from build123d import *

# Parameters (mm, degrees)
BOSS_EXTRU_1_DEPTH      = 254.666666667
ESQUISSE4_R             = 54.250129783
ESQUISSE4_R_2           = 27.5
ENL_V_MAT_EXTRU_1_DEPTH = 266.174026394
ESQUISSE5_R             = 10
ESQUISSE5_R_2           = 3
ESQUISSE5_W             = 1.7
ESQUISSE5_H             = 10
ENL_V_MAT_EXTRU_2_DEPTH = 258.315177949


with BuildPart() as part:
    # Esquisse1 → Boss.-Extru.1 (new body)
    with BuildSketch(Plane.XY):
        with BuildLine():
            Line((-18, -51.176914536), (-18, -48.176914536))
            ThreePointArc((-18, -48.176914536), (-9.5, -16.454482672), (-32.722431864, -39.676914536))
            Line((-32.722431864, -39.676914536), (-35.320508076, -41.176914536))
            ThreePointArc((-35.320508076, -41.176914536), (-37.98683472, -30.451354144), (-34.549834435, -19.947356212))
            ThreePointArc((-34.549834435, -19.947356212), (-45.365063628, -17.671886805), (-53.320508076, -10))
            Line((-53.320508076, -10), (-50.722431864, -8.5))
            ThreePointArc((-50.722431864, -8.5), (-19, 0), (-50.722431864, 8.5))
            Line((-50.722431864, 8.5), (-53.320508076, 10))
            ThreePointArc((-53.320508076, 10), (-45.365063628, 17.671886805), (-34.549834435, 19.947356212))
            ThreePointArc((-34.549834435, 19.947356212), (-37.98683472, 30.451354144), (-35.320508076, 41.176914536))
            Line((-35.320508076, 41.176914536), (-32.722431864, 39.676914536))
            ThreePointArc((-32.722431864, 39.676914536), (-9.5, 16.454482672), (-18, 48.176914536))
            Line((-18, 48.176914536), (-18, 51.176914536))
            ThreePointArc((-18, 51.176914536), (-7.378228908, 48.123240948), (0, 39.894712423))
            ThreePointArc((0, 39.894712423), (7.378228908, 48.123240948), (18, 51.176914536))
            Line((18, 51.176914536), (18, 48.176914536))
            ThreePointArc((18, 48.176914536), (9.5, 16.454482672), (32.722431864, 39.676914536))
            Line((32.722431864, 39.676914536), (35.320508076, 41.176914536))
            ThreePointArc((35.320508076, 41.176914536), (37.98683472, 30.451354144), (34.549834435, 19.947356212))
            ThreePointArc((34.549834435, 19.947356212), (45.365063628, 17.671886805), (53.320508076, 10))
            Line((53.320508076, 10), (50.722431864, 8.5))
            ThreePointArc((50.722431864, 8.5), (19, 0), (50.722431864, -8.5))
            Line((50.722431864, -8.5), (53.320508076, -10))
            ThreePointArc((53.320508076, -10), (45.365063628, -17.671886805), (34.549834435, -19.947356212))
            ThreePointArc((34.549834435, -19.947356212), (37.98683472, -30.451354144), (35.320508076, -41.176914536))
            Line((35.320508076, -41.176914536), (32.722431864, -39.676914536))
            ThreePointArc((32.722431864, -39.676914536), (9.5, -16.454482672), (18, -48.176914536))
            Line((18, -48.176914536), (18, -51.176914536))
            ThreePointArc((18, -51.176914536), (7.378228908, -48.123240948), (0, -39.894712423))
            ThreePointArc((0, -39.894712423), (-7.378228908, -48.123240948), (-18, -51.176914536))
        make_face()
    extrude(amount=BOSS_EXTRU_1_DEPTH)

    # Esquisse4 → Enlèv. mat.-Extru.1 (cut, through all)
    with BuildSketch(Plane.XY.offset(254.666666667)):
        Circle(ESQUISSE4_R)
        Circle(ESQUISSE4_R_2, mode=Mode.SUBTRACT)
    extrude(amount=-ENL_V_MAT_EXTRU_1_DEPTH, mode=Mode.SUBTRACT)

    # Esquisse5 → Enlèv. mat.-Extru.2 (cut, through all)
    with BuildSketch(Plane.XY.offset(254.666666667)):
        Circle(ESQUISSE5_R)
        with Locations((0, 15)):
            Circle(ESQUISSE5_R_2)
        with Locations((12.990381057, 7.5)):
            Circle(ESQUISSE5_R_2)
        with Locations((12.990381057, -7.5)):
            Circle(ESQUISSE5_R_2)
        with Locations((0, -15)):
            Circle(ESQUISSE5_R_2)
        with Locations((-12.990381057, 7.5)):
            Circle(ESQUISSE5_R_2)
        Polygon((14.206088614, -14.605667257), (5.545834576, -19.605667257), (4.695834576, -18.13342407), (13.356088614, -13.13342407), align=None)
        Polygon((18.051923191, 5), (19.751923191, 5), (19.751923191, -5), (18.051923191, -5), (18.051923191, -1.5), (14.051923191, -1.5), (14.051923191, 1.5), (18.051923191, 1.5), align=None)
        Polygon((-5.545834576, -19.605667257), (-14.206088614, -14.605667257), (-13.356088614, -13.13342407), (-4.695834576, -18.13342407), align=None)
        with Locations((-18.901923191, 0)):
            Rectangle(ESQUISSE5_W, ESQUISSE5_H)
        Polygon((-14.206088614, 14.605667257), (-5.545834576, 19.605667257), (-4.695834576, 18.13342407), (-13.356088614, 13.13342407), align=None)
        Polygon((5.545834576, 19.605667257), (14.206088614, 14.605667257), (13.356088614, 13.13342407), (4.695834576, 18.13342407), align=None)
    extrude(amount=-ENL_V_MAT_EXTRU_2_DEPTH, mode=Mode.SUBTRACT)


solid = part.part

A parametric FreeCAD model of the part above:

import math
import FreeCAD as App
import Part
import Sketcher
from FreeCAD import Vector
Q = App.Units.Quantity

doc = App.newDocument("Part")
params = doc.addObject("Spreadsheet::Sheet", "Params")
for row, (alias, value) in enumerate([
    ("sketch1_radius", "20 mm"),
    ("sketch1_radius2", "17 mm"),
    ("pad1_length", "254.666667 mm"),
    ("sketch2_diameter", "55 mm"),
    ("sketch3_diameter", "20 mm"),
    ("sketch3_diameter2", "6 mm"),
    ("sketch3_width", "4 mm"),
    ("sketch3_height", "3 mm"),
    ("sketch3_height2", "10 mm"),
], start=1):
    params.set(f"A{row}", alias)
    params.set(f"B{row}", "=" + value)
    params.setAlias(f"B{row}", alias)

body = doc.addObject("PartDesign::Body", "Body")

# Sketch on XY plane
sketch1 = body.newObject("Sketcher::SketchObject", "Sketch")
sketch1.AttachmentSupport = (doc.getObject("XY_Plane"), [""])
sketch1.MapMode = "FlatFace"
sketch1.addGeometry([
    Part.LineSegment(Vector(-18, -48.2, 0), Vector(-18, -51.2, 0)),  # 0
    Part.ArcOfCircle(Part.Circle(Vector(-18, -31.2, 0), Vector(0, 0, 1), 20), math.radians(-90), math.radians(-26)),  # 1
    Part.ArcOfCircle(Part.Circle(Vector(18, -31.2, 0), Vector(0, 0, 1), 20), math.radians(-154), math.radians(-90)),  # 2
    Part.LineSegment(Vector(18, -51.2, 0), Vector(18, -48.2, 0)),  # 3
    Part.ArcOfCircle(Part.Circle(Vector(18, -31.2, 0), Vector(0, 0, 1), 17), math.radians(-30), math.radians(270)),  # 4
    Part.LineSegment(Vector(32.7, -39.7, 0), Vector(35.3, -41.2, 0)),  # 5
    Part.ArcOfCircle(Part.Circle(Vector(18, -31.2, 0), Vector(0, 0, 1), 20), math.radians(-30), math.radians(34)),  # 6
    Part.ArcOfCircle(Part.Circle(Vector(36, 0, 0), Vector(0, 0, 1), 20), math.radians(-94), math.radians(-30)),  # 7
    Part.LineSegment(Vector(53.3, -10, 0), Vector(50.7, -8.5, 0)),  # 8
    Part.ArcOfCircle(Part.Circle(Vector(36, 0, 0), Vector(0, 0, 1), 17), math.radians(30), math.radians(330)),  # 9
    Part.LineSegment(Vector(50.7, 8.5, 0), Vector(53.3, 10, 0)),  # 10
    Part.ArcOfCircle(Part.Circle(Vector(36, 0, 0), Vector(0, 0, 1), 20), math.radians(30), math.radians(94)),  # 11
    Part.ArcOfCircle(Part.Circle(Vector(18, 31.2, 0), Vector(0, 0, 1), 20), math.radians(-34), math.radians(30)),  # 12
    Part.LineSegment(Vector(35.3, 41.2, 0), Vector(32.7, 39.7, 0)),  # 13
    Part.ArcOfCircle(Part.Circle(Vector(18, 31.2, 0), Vector(0, 0, 1), 17), math.radians(90), math.radians(390)),  # 14
    Part.LineSegment(Vector(18, 48.2, 0), Vector(18, 51.2, 0)),  # 15
    Part.ArcOfCircle(Part.Circle(Vector(18, 31.2, 0), Vector(0, 0, 1), 20), math.radians(90), math.radians(154)),  # 16
    Part.ArcOfCircle(Part.Circle(Vector(-18, 31.2, 0), Vector(0, 0, 1), 20), math.radians(26), math.radians(90)),  # 17
    Part.LineSegment(Vector(-18, 51.2, 0), Vector(-18, 48.2, 0)),  # 18
    Part.ArcOfCircle(Part.Circle(Vector(-18, 31.2, 0), Vector(0, 0, 1), 17), math.radians(150), math.radians(450)),  # 19
    Part.LineSegment(Vector(-32.7, 39.7, 0), Vector(-35.3, 41.2, 0)),  # 20
    Part.ArcOfCircle(Part.Circle(Vector(-18, 31.2, 0), Vector(0, 0, 1), 20), math.radians(150), math.radians(214)),  # 21
    Part.ArcOfCircle(Part.Circle(Vector(-36, 0, 0), Vector(0, 0, 1), 20), math.radians(86), math.radians(150)),  # 22
    Part.LineSegment(Vector(-53.3, 10, 0), Vector(-50.7, 8.5, 0)),  # 23
    Part.ArcOfCircle(Part.Circle(Vector(-36, 0, 0), Vector(0, 0, 1), 17), math.radians(-150), math.radians(150)),  # 24
    Part.LineSegment(Vector(-50.7, -8.5, 0), Vector(-53.3, -10, 0)),  # 25
    Part.ArcOfCircle(Part.Circle(Vector(-36, 0, 0), Vector(0, 0, 1), 20), math.radians(-150), math.radians(-86)),  # 26
    Part.ArcOfCircle(Part.Circle(Vector(-18, -31.2, 0), Vector(0, 0, 1), 20), math.radians(146), math.radians(210)),  # 27
    Part.LineSegment(Vector(-35.3, -41.2, 0), Vector(-32.7, -39.7, 0)),  # 28
    Part.ArcOfCircle(Part.Circle(Vector(-18, -31.2, 0), Vector(0, 0, 1), 17), math.radians(-90), math.radians(210)),  # 29
], False)
sketch1.addConstraint([
    Sketcher.Constraint("Coincident", 0, 2, 1, 1),
    Sketcher.Constraint("Coincident", 1, 2, 2, 1),
    Sketcher.Constraint("Coincident", 2, 2, 3, 1),
    Sketcher.Constraint("Coincident", 3, 2, 4, 2),
    Sketcher.Constraint("Coincident", 4, 1, 5, 1),
    Sketcher.Constraint("Coincident", 5, 2, 6, 1),
    Sketcher.Constraint("Coincident", 6, 2, 7, 1),
    Sketcher.Constraint("Coincident", 7, 2, 8, 1),
    Sketcher.Constraint("Coincident", 8, 2, 9, 2),
    Sketcher.Constraint("Coincident", 9, 1, 10, 1),
    Sketcher.Constraint("Coincident", 10, 2, 11, 1),
    Sketcher.Constraint("Coincident", 11, 2, 12, 1),
    Sketcher.Constraint("Coincident", 12, 2, 13, 1),
    Sketcher.Constraint("Coincident", 13, 2, 14, 2),
    Sketcher.Constraint("Coincident", 14, 1, 15, 1),
    Sketcher.Constraint("Coincident", 15, 2, 16, 1),
    Sketcher.Constraint("Coincident", 16, 2, 17, 1),
    Sketcher.Constraint("Coincident", 17, 2, 18, 1),
    Sketcher.Constraint("Coincident", 18, 2, 19, 2),
    Sketcher.Constraint("Coincident", 19, 1, 20, 1),
    Sketcher.Constraint("Coincident", 20, 2, 21, 1),
    Sketcher.Constraint("Coincident", 21, 2, 22, 1),
    Sketcher.Constraint("Coincident", 22, 2, 23, 1),
    Sketcher.Constraint("Coincident", 23, 2, 24, 2),
    Sketcher.Constraint("Coincident", 24, 1, 25, 1),
    Sketcher.Constraint("Coincident", 25, 2, 26, 1),
    Sketcher.Constraint("Coincident", 26, 2, 27, 1),
    Sketcher.Constraint("Coincident", 27, 2, 28, 1),
    Sketcher.Constraint("Coincident", 28, 2, 29, 2),
    Sketcher.Constraint("Coincident", 29, 1, 0, 1),
    Sketcher.Constraint("Vertical", 0),
    Sketcher.Constraint("Vertical", 3),
    Sketcher.Constraint("Vertical", 15),
    Sketcher.Constraint("Vertical", 18),
    Sketcher.Constraint("Coincident", 4, 3, 2, 3),
    Sketcher.Constraint("Coincident", 6, 3, 2, 3),
    Sketcher.Constraint("Coincident", 9, 3, 7, 3),
    Sketcher.Constraint("Coincident", 11, 3, 7, 3),
    Sketcher.Constraint("Coincident", 14, 3, 12, 3),
    Sketcher.Constraint("Coincident", 16, 3, 12, 3),
    Sketcher.Constraint("Coincident", 19, 3, 17, 3),
    Sketcher.Constraint("Coincident", 21, 3, 17, 3),
    Sketcher.Constraint("Coincident", 24, 3, 22, 3),
    Sketcher.Constraint("Coincident", 26, 3, 22, 3),
    Sketcher.Constraint("Coincident", 27, 3, 1, 3),
    Sketcher.Constraint("Coincident", 29, 3, 1, 3),
    Sketcher.Constraint("Equal", 1, 2),
    Sketcher.Constraint("Equal", 2, 6),
    Sketcher.Constraint("Equal", 6, 7),
    Sketcher.Constraint("Equal", 4, 9),
    Sketcher.Constraint("Equal", 7, 11),
    Sketcher.Constraint("Equal", 11, 12),
    Sketcher.Constraint("Equal", 9, 14),
    Sketcher.Constraint("Equal", 12, 16),
    Sketcher.Constraint("Equal", 16, 17),
    Sketcher.Constraint("Equal", 14, 19),
    Sketcher.Constraint("Equal", 17, 21),
    Sketcher.Constraint("Equal", 21, 22),
    Sketcher.Constraint("Equal", 19, 24),
    Sketcher.Constraint("Equal", 22, 26),
    Sketcher.Constraint("Equal", 26, 27),
    Sketcher.Constraint("Equal", 24, 29),
    Sketcher.Constraint("Symmetric", 1, 3, 12, 3, -1, 1),
    Sketcher.Constraint("Symmetric", 2, 3, 17, 3, -1, 1),
    Sketcher.Constraint("Symmetric", 7, 3, 22, 3, -1, 1),
    Sketcher.Constraint("Symmetric", 1, 3, 2, 3, -2),
    Sketcher.Constraint("Symmetric", 10, 2, 22, 2, -2),
    Sketcher.Constraint("Parallel", 5, 8),
    Sketcher.Constraint("Parallel", 10, 13),
    Sketcher.Constraint("Parallel", 8, 20),
    Sketcher.Constraint("Parallel", 20, 23),
    Sketcher.Constraint("Parallel", 13, 25),
    Sketcher.Constraint("Parallel", 25, 28),
    Sketcher.Constraint("Horizontal", 13, 2, 19, 1),
    Sketcher.Constraint("Horizontal", 12, 2, 20, 2),
    Sketcher.Constraint("Horizontal", 8, 2, 24, 1),
    Sketcher.Constraint("Horizontal", 5, 2, 27, 2),
    Sketcher.Constraint("Vertical", 29, 3, 0, 2),
    Sketcher.Constraint("Vertical", 16, 3, 2, 2),
    Sketcher.Constraint("Vertical", 8, 2, 9, 1),
    Sketcher.Constraint("Vertical", 5, 2, 12, 2),
    Sketcher.Constraint("Vertical", 3, 2, 14, 1),
    Sketcher.Constraint("Vertical", 0, 2, 17, 2),
    Sketcher.Constraint("Radius", 1, 20.0),
    Sketcher.Constraint("Radius", 4, 17.0),
    Sketcher.Constraint("Angle", 5, Q("-30 deg")),
    Sketcher.Constraint("DistanceX", 1, 3, -1, 1, 18.0),
    Sketcher.Constraint("DistanceX", -1, 1, 7, 3, 36.0),
    Sketcher.Constraint("DistanceY", 7, 2, -1, 1, 10.0),
    Sketcher.Constraint("DistanceY", 3, 2, 5, 2, 7.0),
    Sketcher.Constraint("DistanceY", 2, 3, 12, 3, 62.353829),
])
sketch1.setExpression("Constraints[83]", "Params.sketch1_radius")
sketch1.setExpression("Constraints[84]", "Params.sketch1_radius2")
pad1 = body.newObject("PartDesign::Pad", "Pad")
pad1.Profile = sketch1
pad1.setExpression("Length", "Params.pad1_length")

# Sketch on XY plane
sketch2 = body.newObject("Sketcher::SketchObject", "Sketch001")
sketch2.AttachmentSupport = (doc.getObject("XY_Plane"), [""])
sketch2.MapMode = "FlatFace"
sketch2.AttachmentOffset = App.Placement(Vector(0, 0, 254.666667), App.Rotation())
sketch2.addGeometry([
    Part.Circle(Vector(0, 0, 0), Vector(0, 0, 1), 54),
    Part.Circle(Vector(0, 0, 0), Vector(0, 0, 1), 28),
], False)
sketch2.addConstraint([
    Sketcher.Constraint("Coincident", 0, 3, -1, 1),
    Sketcher.Constraint("Coincident", 1, 3, -1, 1),
    Sketcher.Constraint("Diameter", 1, 55.0),
    Sketcher.Constraint("Diameter", 0, 108.50026),
])
sketch2.setExpression("Constraints[2]", "Params.sketch2_diameter")
pocket1 = body.newObject("PartDesign::Pocket", "Pocket")
pocket1.Profile = sketch2
pocket1.Type = "ThroughAll"

# Sketch on XY plane
sketch3 = body.newObject("Sketcher::SketchObject", "Sketch002")
sketch3.AttachmentSupport = (doc.getObject("XY_Plane"), [""])
sketch3.MapMode = "FlatFace"
sketch3.AttachmentOffset = App.Placement(Vector(0, 0, 254.666667), App.Rotation())
sketch3.addGeometry([
    Part.Circle(Vector(0, 0, 0), Vector(0, 0, 1), 10),  # 0
    Part.Circle(Vector(0, 15, 0), Vector(0, 0, 1), 3),  # 1
    Part.Circle(Vector(13, 7.5, 0), Vector(0, 0, 1), 3),  # 2
    Part.Circle(Vector(13, -7.5, 0), Vector(0, 0, 1), 3),  # 3
    Part.Circle(Vector(0, -15, 0), Vector(0, 0, 1), 3),  # 4
    Part.Circle(Vector(-13, 7.5, 0), Vector(0, 0, 1), 3),  # 5
    Part.LineSegment(Vector(5.5, -19.6, 0), Vector(14.2, -14.6, 0)),  # 6
    Part.LineSegment(Vector(14.2, -14.6, 0), Vector(13.4, -13.1, 0)),  # 7
    Part.LineSegment(Vector(13.4, -13.1, 0), Vector(4.7, -18.1, 0)),  # 8
    Part.LineSegment(Vector(4.7, -18.1, 0), Vector(5.5, -19.6, 0)),  # 9
    Part.LineSegment(Vector(19.8, 5, 0), Vector(18.1, 5, 0)),  # 10
    Part.LineSegment(Vector(18.1, 5, 0), Vector(18.1, 1.5, 0)),  # 11
    Part.LineSegment(Vector(18.1, 1.5, 0), Vector(14.1, 1.5, 0)),  # 12
    Part.LineSegment(Vector(14.1, 1.5, 0), Vector(14.1, -1.5, 0)),  # 13
    Part.LineSegment(Vector(14.1, -1.5, 0), Vector(18.1, -1.5, 0)),  # 14
    Part.LineSegment(Vector(18.1, -1.5, 0), Vector(18.1, -5, 0)),  # 15
    Part.LineSegment(Vector(18.1, -5, 0), Vector(19.8, -5, 0)),  # 16
    Part.LineSegment(Vector(19.8, -5, 0), Vector(19.8, 5, 0)),  # 17
    Part.LineSegment(Vector(-14.2, -14.6, 0), Vector(-5.5, -19.6, 0)),  # 18
    Part.LineSegment(Vector(-5.5, -19.6, 0), Vector(-4.7, -18.1, 0)),  # 19
    Part.LineSegment(Vector(-4.7, -18.1, 0), Vector(-13.4, -13.1, 0)),  # 20
    Part.LineSegment(Vector(-13.4, -13.1, 0), Vector(-14.2, -14.6, 0)),  # 21
    Part.LineSegment(Vector(-19.8, 5, 0), Vector(-19.8, -5, 0)),  # 22
    Part.LineSegment(Vector(-19.8, -5, 0), Vector(-18.1, -5, 0)),  # 23
    Part.LineSegment(Vector(-18.1, -5, 0), Vector(-18.1, 5, 0)),  # 24
    Part.LineSegment(Vector(-18.1, 5, 0), Vector(-19.8, 5, 0)),  # 25
    Part.LineSegment(Vector(-5.5, 19.6, 0), Vector(-14.2, 14.6, 0)),  # 26
    Part.LineSegment(Vector(-14.2, 14.6, 0), Vector(-13.4, 13.1, 0)),  # 27
    Part.LineSegment(Vector(-13.4, 13.1, 0), Vector(-4.7, 18.1, 0)),  # 28
    Part.LineSegment(Vector(-4.7, 18.1, 0), Vector(-5.5, 19.6, 0)),  # 29
    Part.LineSegment(Vector(14.2, 14.6, 0), Vector(5.5, 19.6, 0)),  # 30
    Part.LineSegment(Vector(5.5, 19.6, 0), Vector(4.7, 18.1, 0)),  # 31
    Part.LineSegment(Vector(4.7, 18.1, 0), Vector(13.4, 13.1, 0)),  # 32
    Part.LineSegment(Vector(13.4, 13.1, 0), Vector(14.2, 14.6, 0)),  # 33
], False)
sketch3.addConstraint([
    Sketcher.Constraint("Coincident", 6, 2, 7, 1),
    Sketcher.Constraint("Coincident", 7, 2, 8, 1),
    Sketcher.Constraint("Coincident", 8, 2, 9, 1),
    Sketcher.Constraint("Coincident", 9, 2, 6, 1),
    Sketcher.Constraint("Coincident", 10, 2, 11, 1),
    Sketcher.Constraint("Coincident", 11, 2, 12, 1),
    Sketcher.Constraint("Coincident", 12, 2, 13, 1),
    Sketcher.Constraint("Coincident", 13, 2, 14, 1),
    Sketcher.Constraint("Coincident", 14, 2, 15, 1),
    Sketcher.Constraint("Coincident", 15, 2, 16, 1),
    Sketcher.Constraint("Coincident", 16, 2, 17, 1),
    Sketcher.Constraint("Coincident", 17, 2, 10, 1),
    Sketcher.Constraint("Coincident", 18, 2, 19, 1),
    Sketcher.Constraint("Coincident", 19, 2, 20, 1),
    Sketcher.Constraint("Coincident", 20, 2, 21, 1),
    Sketcher.Constraint("Coincident", 21, 2, 18, 1),
    Sketcher.Constraint("Coincident", 22, 2, 23, 1),
    Sketcher.Constraint("Coincident", 23, 2, 24, 1),
    Sketcher.Constraint("Coincident", 24, 2, 25, 1),
    Sketcher.Constraint("Coincident", 25, 2, 22, 1),
    Sketcher.Constraint("Coincident", 26, 2, 27, 1),
    Sketcher.Constraint("Coincident", 27, 2, 28, 1),
    Sketcher.Constraint("Coincident", 28, 2, 29, 1),
    Sketcher.Constraint("Coincident", 29, 2, 26, 1),
    Sketcher.Constraint("Coincident", 30, 2, 31, 1),
    Sketcher.Constraint("Coincident", 31, 2, 32, 1),
    Sketcher.Constraint("Coincident", 32, 2, 33, 1),
    Sketcher.Constraint("Coincident", 33, 2, 30, 1),
    Sketcher.Constraint("Horizontal", 10),
    Sketcher.Constraint("Vertical", 11),
    Sketcher.Constraint("Horizontal", 12),
    Sketcher.Constraint("Vertical", 13),
    Sketcher.Constraint("Horizontal", 14),
    Sketcher.Constraint("Vertical", 15),
    Sketcher.Constraint("Horizontal", 16),
    Sketcher.Constraint("Vertical", 17),
    Sketcher.Constraint("Vertical", 22),
    Sketcher.Constraint("Horizontal", 23),
    Sketcher.Constraint("Vertical", 24),
    Sketcher.Constraint("Horizontal", 25),
    Sketcher.Constraint("Coincident", 0, 3, -1, 1),
    Sketcher.Constraint("Equal", 1, 2),
    Sketcher.Constraint("Equal", 2, 3),
    Sketcher.Constraint("Equal", 3, 4),
    Sketcher.Constraint("Equal", 4, 5),
    Sketcher.Constraint("Symmetric", 1, 3, 4, 3, -1, 1),
    Sketcher.Constraint("Symmetric", 3, 3, 5, 3, -1, 1),
    Sketcher.Constraint("Symmetric", 17, 2, 22, 2, -1, 1),
    Sketcher.Constraint("Symmetric", 15, 2, 24, 2, -1, 1),
    Sketcher.Constraint("Symmetric", 6, 2, 26, 2, -1, 1),
    Sketcher.Constraint("Symmetric", 7, 2, 27, 2, -1, 1),
    Sketcher.Constraint("Symmetric", 8, 2, 28, 2, -1, 1),
    Sketcher.Constraint("Symmetric", 9, 2, 29, 2, -1, 1),
    Sketcher.Constraint("Symmetric", 18, 2, 30, 2, -1, 1),
    Sketcher.Constraint("Symmetric", 19, 2, 31, 2, -1, 1),
    Sketcher.Constraint("Symmetric", 20, 2, 32, 2, -1, 1),
    Sketcher.Constraint("Symmetric", 21, 2, 33, 2, -1, 1),
    Sketcher.Constraint("Symmetric", 2, 3, 5, 3, -2),
    Sketcher.Constraint("Symmetric", 9, 2, 18, 2, -2),
    Sketcher.Constraint("Symmetric", 8, 2, 19, 2, -2),
    Sketcher.Constraint("Symmetric", 7, 2, 20, 2, -2),
    Sketcher.Constraint("Symmetric", 6, 2, 21, 2, -2),
    Sketcher.Constraint("Symmetric", 10, 2, 24, 2, -2),
    Sketcher.Constraint("PointOnObject", 1, 3, -2),
    Sketcher.Constraint("Perpendicular", 6, 7),
    Sketcher.Constraint("Perpendicular", 7, 8),
    Sketcher.Constraint("Perpendicular", 8, 9),
    Sketcher.Constraint("Equal", 11, 15),
    Sketcher.Constraint("Diameter", 0, 20.0),
    Sketcher.Constraint("Diameter", 1, 6.0),
    Sketcher.Constraint("DistanceX", 12, 2, 12, 1, 4.0),
    Sketcher.Constraint("DistanceY", 13, 2, 13, 1, 3.0),
    Sketcher.Constraint("DistanceY", 17, 1, 17, 2, 10.0),
    Sketcher.Constraint("Angle", 6, Q("30 deg")),
    Sketcher.Constraint("Distance", 6, 10.0),
    Sketcher.Constraint("DistanceX", 10, 2, 10, 1, 1.7),
    Sketcher.Constraint("DistanceY", -1, 1, 1, 3, 15.0),
    Sketcher.Constraint("DistanceY", 3, 3, 2, 3, 15.0),
    Sketcher.Constraint("Distance", 7, 1.7),
    Sketcher.Constraint("DistanceX", -1, 1, 2, 3, 12.990381),
    Sketcher.Constraint("DistanceX", -1, 1, 6, 2, 14.206089),
    Sketcher.Constraint("DistanceX", 22, 2, 19, 2, 15.056089),
    Sketcher.Constraint("DistanceY", 6, 2, -1, 1, 14.605667),
])
sketch3.setExpression("Constraints[68]", "Params.sketch3_diameter")
sketch3.setExpression("Constraints[69]", "Params.sketch3_diameter2")
sketch3.setExpression("Constraints[70]", "Params.sketch3_width")
sketch3.setExpression("Constraints[71]", "Params.sketch3_height")
sketch3.setExpression("Constraints[72]", "Params.sketch3_height2")
pocket2 = body.newObject("PartDesign::Pocket", "Pocket001")
pocket2.Profile = sketch3
pocket2.Type = "ThroughAll"

doc.recompute()
